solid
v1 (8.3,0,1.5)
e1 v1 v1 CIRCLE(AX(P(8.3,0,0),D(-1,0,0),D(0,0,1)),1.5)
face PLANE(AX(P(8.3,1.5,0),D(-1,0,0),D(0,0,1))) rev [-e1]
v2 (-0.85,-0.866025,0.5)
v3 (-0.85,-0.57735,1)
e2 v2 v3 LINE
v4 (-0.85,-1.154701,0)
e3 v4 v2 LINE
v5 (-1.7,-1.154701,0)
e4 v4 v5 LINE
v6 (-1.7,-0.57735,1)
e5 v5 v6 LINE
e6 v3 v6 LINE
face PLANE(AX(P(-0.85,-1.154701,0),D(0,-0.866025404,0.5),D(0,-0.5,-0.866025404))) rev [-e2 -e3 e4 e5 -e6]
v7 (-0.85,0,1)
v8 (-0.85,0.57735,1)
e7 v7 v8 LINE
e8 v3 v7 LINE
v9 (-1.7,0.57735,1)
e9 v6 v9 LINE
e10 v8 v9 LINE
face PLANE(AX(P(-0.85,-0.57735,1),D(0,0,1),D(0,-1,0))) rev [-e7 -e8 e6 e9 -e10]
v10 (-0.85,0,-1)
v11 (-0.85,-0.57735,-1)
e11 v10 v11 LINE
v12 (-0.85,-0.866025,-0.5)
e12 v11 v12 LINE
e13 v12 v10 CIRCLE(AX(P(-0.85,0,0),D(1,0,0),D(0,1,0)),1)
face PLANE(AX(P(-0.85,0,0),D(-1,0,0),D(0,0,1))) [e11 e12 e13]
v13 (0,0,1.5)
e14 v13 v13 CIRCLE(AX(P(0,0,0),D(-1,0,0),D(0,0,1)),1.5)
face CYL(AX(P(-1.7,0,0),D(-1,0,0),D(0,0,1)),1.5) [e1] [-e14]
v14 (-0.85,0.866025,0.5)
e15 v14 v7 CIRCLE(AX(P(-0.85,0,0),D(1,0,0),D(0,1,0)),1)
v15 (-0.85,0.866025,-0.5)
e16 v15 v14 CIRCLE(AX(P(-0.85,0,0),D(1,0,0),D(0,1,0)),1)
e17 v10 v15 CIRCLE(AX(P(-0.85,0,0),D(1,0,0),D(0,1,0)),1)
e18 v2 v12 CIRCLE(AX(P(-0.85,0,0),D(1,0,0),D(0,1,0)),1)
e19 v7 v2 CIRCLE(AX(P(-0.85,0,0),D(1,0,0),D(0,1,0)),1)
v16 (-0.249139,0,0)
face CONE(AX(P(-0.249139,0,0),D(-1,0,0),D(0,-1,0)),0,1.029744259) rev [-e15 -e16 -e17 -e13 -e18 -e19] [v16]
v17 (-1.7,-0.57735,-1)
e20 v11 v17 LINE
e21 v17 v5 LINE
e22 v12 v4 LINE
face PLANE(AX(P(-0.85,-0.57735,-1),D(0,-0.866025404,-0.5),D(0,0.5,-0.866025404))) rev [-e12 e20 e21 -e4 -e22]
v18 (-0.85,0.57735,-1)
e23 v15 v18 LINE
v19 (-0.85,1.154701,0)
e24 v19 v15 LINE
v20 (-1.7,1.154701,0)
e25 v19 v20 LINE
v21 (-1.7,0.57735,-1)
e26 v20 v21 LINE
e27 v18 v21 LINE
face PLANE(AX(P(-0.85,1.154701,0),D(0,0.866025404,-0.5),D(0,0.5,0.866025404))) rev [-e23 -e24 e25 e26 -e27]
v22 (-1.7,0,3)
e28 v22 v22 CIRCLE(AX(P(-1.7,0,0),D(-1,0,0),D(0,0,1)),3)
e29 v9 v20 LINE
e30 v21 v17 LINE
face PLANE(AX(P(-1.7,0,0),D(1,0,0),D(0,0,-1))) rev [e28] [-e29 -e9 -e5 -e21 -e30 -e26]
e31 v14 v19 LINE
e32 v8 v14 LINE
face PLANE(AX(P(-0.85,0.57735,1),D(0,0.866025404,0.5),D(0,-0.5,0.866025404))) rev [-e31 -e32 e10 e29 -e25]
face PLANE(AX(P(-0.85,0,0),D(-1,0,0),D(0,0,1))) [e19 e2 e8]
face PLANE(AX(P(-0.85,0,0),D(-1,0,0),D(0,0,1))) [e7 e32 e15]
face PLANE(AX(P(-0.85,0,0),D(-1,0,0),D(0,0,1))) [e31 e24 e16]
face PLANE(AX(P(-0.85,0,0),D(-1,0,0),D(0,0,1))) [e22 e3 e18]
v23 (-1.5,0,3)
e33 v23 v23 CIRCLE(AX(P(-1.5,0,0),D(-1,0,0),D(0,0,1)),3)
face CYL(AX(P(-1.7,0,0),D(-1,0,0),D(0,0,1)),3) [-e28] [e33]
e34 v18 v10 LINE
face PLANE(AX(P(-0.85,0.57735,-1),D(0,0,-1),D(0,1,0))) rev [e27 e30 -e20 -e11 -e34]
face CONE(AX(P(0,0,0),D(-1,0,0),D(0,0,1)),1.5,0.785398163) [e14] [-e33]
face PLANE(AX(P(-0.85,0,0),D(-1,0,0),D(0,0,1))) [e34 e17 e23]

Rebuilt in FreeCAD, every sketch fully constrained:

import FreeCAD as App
import Part
import Sketcher
Q = App.Units.Quantity

doc = App.newDocument("Part")
body = doc.addObject("PartDesign::Body", "Body")

# Sketch on XY plane
sketch1 = doc.addObject("Sketcher::SketchObject", "Sketch")
body.addObject(sketch1)
sketch1.AttachmentSupport = (doc.XY_Plane, [""])
sketch1.MapMode = "FlatFace"
sketch1.addGeometry(Part.LineSegment(App.Vector(-1.7, 3, 0), App.Vector(-1.7, 0, 0)), False)
sketch1.addGeometry(Part.LineSegment(App.Vector(-1.7, 0, 0), App.Vector(8.3, 0, 0)), False)
sketch1.addGeometry(Part.LineSegment(App.Vector(8.3, 0, 0), App.Vector(8.3, 1.5, 0)), False)
sketch1.addGeometry(Part.LineSegment(App.Vector(8.3, 1.5, 0), App.Vector(0, 1.5, 0)), False)
sketch1.addGeometry(Part.LineSegment(App.Vector(0, 1.5, 0), App.Vector(-1.5, 3, 0)), False)
sketch1.addGeometry(Part.LineSegment(App.Vector(-1.5, 3, 0), App.Vector(-1.7, 3, 0)), False)
sketch1.addConstraint(Sketcher.Constraint("Coincident", 0, 2, 1, 1))
sketch1.addConstraint(Sketcher.Constraint("Coincident", 1, 2, 2, 1))
sketch1.addConstraint(Sketcher.Constraint("Coincident", 2, 2, 3, 1))
sketch1.addConstraint(Sketcher.Constraint("Coincident", 3, 2, 4, 1))
sketch1.addConstraint(Sketcher.Constraint("Coincident", 4, 2, 5, 1))
sketch1.addConstraint(Sketcher.Constraint("Coincident", 5, 2, 0, 1))
sketch1.addConstraint(Sketcher.Constraint("Vertical", 0))
sketch1.addConstraint(Sketcher.Constraint("Horizontal", 1))
sketch1.addConstraint(Sketcher.Constraint("Vertical", 2))
sketch1.addConstraint(Sketcher.Constraint("Horizontal", 3))
sketch1.addConstraint(Sketcher.Constraint("Horizontal", 5))
sketch1.addConstraint(Sketcher.Constraint("PointOnObject", 0, 2, -1))
sketch1.addConstraint(Sketcher.Constraint("PointOnObject", 3, 2, -2))
sketch1.addConstraint(Sketcher.Constraint("DistanceX", 1, 1, 1, 2, 10.0))
sketch1.addConstraint(Sketcher.Constraint("DistanceY", 0, 2, 0, 1, 3.0))
sketch1.addConstraint(Sketcher.Constraint("Angle", 4, Q("135 deg")))
sketch1.addConstraint(Sketcher.Constraint("DistanceX", 3, 2, 3, 1, 8.3))
sketch1.addConstraint(Sketcher.Constraint("DistanceX", 5, 2, 5, 1, 0.2))
revolution = doc.addObject("PartDesign::Revolution", "Revolution")
body.addObject(revolution)
revolution.Profile = sketch1
revolution.ReferenceAxis = (sketch1, ["H_Axis"])
revolution.Angle = 360

# Sketch on XY plane
sketch2 = doc.addObject("Sketcher::SketchObject", "Sketch001")
body.addObject(sketch2)
sketch2.AttachmentSupport = (doc.XY_Plane, [""])
sketch2.MapMode = "FlatFace"
sketch2.addGeometry(Part.LineSegment(App.Vector(-0.249139, 0, 0), App.Vector(-0.85, 1, 0)), False)
sketch2.addGeometry(Part.LineSegment(App.Vector(-0.85, 1, 0), App.Vector(-1.7, 1, 0)), False)
sketch2.addGeometry(Part.LineSegment(App.Vector(-1.7, 1, 0), App.Vector(-1.7, 0, 0)), False)
sketch2.addGeometry(Part.LineSegment(App.Vector(-1.7, 0, 0), App.Vector(-0.249139, 0, 0)), False)
sketch2.addConstraint(Sketcher.Constraint("Coincident", 0, 2, 1, 1))
sketch2.addConstraint(Sketcher.Constraint("Coincident", 1, 2, 2, 1))
sketch2.addConstraint(Sketcher.Constraint("Coincident", 2, 2, 3, 1))
sketch2.addConstraint(Sketcher.Constraint("Coincident", 3, 2, 0, 1))
sketch2.addConstraint(Sketcher.Constraint("Horizontal", 1))
sketch2.addConstraint(Sketcher.Constraint("Vertical", 2))
sketch2.addConstraint(Sketcher.Constraint("Horizontal", 3))
sketch2.addConstraint(Sketcher.Constraint("PointOnObject", 2, 2, -1))
sketch2.addConstraint(Sketcher.Constraint("DistanceY", 2, 2, 2, 1, 1.0))
sketch2.addConstraint(Sketcher.Constraint("Angle", 0, Q("121 deg")))
sketch2.addConstraint(Sketcher.Constraint("DistanceX", 1, 2, 1, 1, 0.85))
sketch2.addConstraint(Sketcher.Constraint("DistanceX", 1, 2, -1, 1, 1.7))
groove = doc.addObject("PartDesign::Groove", "Groove")
body.addObject(groove)
groove.Profile = sketch2
groove.ReferenceAxis = (sketch2, ["H_Axis"])
groove.Angle = 360

# Sketch on YZ plane
sketch3 = doc.addObject("Sketcher::SketchObject", "Sketch002")
body.addObject(sketch3)
sketch3.AttachmentSupport = (doc.YZ_Plane, [""])
sketch3.MapMode = "FlatFace"
sketch3.AttachmentOffset = App.Placement(App.Vector(0, 0, -1.7), App.Rotation())
sketch3.addGeometry(Part.LineSegment(App.Vector(1.154701, 0, 0), App.Vector(0.57735, -1, 0)), False)
sketch3.addGeometry(Part.LineSegment(App.Vector(0.57735, -1, 0), App.Vector(-0.57735, -1, 0)), False)
sketch3.addGeometry(Part.LineSegment(App.Vector(-0.57735, -1, 0), App.Vector(-1.154701, 0, 0)), False)
sketch3.addGeometry(Part.LineSegment(App.Vector(-1.154701, 0, 0), App.Vector(-0.57735, 1, 0)), False)
sketch3.addGeometry(Part.LineSegment(App.Vector(-0.57735, 1, 0), App.Vector(0.57735, 1, 0)), False)
sketch3.addGeometry(Part.LineSegment(App.Vector(0.57735, 1, 0), App.Vector(1.154701, 0, 0)), False)
sketch3.addConstraint(Sketcher.Constraint("Coincident", 0, 2, 1, 1))
sketch3.addConstraint(Sketcher.Constraint("Coincident", 1, 2, 2, 1))
sketch3.addConstraint(Sketcher.Constraint("Coincident", 2, 2, 3, 1))
sketch3.addConstraint(Sketcher.Constraint("Coincident", 3, 2, 4, 1))
sketch3.addConstraint(Sketcher.Constraint("Coincident", 4, 2, 5, 1))
sketch3.addConstraint(Sketcher.Constraint("Coincident", 5, 2, 0, 1))
sketch3.addConstraint(Sketcher.Constraint("Horizontal", 1))
sketch3.addConstraint(Sketcher.Constraint("Horizontal", 4))
sketch3.addConstraint(Sketcher.Constraint("Symmetric", 0, 2, 3, 2, -1, 1))
sketch3.addConstraint(Sketcher.Constraint("Symmetric", 2, 2, 5, 2, -1, 1))
sketch3.addConstraint(Sketcher.Constraint("PointOnObject", 2, 2, -1))
sketch3.addConstraint(Sketcher.Constraint("Parallel", 2, 5))
sketch3.addConstraint(Sketcher.Constraint("Vertical", 1, 2, 3, 2))
sketch3.addConstraint(Sketcher.Constraint("Angle", 0, Q("-120 deg")))
sketch3.addConstraint(Sketcher.Constraint("DistanceY", 0, 2, -1, 1, 1.0))
sketch3.addConstraint(Sketcher.Constraint("DistanceX", 1, 2, 1, 1, 1.154701))
pocket1 = doc.addObject("PartDesign::Pocket", "Pocket")
body.addObject(pocket1)
pocket1.Profile = sketch3
pocket1.Length = 0.85
pocket1.Reversed = True

doc.recompute()
